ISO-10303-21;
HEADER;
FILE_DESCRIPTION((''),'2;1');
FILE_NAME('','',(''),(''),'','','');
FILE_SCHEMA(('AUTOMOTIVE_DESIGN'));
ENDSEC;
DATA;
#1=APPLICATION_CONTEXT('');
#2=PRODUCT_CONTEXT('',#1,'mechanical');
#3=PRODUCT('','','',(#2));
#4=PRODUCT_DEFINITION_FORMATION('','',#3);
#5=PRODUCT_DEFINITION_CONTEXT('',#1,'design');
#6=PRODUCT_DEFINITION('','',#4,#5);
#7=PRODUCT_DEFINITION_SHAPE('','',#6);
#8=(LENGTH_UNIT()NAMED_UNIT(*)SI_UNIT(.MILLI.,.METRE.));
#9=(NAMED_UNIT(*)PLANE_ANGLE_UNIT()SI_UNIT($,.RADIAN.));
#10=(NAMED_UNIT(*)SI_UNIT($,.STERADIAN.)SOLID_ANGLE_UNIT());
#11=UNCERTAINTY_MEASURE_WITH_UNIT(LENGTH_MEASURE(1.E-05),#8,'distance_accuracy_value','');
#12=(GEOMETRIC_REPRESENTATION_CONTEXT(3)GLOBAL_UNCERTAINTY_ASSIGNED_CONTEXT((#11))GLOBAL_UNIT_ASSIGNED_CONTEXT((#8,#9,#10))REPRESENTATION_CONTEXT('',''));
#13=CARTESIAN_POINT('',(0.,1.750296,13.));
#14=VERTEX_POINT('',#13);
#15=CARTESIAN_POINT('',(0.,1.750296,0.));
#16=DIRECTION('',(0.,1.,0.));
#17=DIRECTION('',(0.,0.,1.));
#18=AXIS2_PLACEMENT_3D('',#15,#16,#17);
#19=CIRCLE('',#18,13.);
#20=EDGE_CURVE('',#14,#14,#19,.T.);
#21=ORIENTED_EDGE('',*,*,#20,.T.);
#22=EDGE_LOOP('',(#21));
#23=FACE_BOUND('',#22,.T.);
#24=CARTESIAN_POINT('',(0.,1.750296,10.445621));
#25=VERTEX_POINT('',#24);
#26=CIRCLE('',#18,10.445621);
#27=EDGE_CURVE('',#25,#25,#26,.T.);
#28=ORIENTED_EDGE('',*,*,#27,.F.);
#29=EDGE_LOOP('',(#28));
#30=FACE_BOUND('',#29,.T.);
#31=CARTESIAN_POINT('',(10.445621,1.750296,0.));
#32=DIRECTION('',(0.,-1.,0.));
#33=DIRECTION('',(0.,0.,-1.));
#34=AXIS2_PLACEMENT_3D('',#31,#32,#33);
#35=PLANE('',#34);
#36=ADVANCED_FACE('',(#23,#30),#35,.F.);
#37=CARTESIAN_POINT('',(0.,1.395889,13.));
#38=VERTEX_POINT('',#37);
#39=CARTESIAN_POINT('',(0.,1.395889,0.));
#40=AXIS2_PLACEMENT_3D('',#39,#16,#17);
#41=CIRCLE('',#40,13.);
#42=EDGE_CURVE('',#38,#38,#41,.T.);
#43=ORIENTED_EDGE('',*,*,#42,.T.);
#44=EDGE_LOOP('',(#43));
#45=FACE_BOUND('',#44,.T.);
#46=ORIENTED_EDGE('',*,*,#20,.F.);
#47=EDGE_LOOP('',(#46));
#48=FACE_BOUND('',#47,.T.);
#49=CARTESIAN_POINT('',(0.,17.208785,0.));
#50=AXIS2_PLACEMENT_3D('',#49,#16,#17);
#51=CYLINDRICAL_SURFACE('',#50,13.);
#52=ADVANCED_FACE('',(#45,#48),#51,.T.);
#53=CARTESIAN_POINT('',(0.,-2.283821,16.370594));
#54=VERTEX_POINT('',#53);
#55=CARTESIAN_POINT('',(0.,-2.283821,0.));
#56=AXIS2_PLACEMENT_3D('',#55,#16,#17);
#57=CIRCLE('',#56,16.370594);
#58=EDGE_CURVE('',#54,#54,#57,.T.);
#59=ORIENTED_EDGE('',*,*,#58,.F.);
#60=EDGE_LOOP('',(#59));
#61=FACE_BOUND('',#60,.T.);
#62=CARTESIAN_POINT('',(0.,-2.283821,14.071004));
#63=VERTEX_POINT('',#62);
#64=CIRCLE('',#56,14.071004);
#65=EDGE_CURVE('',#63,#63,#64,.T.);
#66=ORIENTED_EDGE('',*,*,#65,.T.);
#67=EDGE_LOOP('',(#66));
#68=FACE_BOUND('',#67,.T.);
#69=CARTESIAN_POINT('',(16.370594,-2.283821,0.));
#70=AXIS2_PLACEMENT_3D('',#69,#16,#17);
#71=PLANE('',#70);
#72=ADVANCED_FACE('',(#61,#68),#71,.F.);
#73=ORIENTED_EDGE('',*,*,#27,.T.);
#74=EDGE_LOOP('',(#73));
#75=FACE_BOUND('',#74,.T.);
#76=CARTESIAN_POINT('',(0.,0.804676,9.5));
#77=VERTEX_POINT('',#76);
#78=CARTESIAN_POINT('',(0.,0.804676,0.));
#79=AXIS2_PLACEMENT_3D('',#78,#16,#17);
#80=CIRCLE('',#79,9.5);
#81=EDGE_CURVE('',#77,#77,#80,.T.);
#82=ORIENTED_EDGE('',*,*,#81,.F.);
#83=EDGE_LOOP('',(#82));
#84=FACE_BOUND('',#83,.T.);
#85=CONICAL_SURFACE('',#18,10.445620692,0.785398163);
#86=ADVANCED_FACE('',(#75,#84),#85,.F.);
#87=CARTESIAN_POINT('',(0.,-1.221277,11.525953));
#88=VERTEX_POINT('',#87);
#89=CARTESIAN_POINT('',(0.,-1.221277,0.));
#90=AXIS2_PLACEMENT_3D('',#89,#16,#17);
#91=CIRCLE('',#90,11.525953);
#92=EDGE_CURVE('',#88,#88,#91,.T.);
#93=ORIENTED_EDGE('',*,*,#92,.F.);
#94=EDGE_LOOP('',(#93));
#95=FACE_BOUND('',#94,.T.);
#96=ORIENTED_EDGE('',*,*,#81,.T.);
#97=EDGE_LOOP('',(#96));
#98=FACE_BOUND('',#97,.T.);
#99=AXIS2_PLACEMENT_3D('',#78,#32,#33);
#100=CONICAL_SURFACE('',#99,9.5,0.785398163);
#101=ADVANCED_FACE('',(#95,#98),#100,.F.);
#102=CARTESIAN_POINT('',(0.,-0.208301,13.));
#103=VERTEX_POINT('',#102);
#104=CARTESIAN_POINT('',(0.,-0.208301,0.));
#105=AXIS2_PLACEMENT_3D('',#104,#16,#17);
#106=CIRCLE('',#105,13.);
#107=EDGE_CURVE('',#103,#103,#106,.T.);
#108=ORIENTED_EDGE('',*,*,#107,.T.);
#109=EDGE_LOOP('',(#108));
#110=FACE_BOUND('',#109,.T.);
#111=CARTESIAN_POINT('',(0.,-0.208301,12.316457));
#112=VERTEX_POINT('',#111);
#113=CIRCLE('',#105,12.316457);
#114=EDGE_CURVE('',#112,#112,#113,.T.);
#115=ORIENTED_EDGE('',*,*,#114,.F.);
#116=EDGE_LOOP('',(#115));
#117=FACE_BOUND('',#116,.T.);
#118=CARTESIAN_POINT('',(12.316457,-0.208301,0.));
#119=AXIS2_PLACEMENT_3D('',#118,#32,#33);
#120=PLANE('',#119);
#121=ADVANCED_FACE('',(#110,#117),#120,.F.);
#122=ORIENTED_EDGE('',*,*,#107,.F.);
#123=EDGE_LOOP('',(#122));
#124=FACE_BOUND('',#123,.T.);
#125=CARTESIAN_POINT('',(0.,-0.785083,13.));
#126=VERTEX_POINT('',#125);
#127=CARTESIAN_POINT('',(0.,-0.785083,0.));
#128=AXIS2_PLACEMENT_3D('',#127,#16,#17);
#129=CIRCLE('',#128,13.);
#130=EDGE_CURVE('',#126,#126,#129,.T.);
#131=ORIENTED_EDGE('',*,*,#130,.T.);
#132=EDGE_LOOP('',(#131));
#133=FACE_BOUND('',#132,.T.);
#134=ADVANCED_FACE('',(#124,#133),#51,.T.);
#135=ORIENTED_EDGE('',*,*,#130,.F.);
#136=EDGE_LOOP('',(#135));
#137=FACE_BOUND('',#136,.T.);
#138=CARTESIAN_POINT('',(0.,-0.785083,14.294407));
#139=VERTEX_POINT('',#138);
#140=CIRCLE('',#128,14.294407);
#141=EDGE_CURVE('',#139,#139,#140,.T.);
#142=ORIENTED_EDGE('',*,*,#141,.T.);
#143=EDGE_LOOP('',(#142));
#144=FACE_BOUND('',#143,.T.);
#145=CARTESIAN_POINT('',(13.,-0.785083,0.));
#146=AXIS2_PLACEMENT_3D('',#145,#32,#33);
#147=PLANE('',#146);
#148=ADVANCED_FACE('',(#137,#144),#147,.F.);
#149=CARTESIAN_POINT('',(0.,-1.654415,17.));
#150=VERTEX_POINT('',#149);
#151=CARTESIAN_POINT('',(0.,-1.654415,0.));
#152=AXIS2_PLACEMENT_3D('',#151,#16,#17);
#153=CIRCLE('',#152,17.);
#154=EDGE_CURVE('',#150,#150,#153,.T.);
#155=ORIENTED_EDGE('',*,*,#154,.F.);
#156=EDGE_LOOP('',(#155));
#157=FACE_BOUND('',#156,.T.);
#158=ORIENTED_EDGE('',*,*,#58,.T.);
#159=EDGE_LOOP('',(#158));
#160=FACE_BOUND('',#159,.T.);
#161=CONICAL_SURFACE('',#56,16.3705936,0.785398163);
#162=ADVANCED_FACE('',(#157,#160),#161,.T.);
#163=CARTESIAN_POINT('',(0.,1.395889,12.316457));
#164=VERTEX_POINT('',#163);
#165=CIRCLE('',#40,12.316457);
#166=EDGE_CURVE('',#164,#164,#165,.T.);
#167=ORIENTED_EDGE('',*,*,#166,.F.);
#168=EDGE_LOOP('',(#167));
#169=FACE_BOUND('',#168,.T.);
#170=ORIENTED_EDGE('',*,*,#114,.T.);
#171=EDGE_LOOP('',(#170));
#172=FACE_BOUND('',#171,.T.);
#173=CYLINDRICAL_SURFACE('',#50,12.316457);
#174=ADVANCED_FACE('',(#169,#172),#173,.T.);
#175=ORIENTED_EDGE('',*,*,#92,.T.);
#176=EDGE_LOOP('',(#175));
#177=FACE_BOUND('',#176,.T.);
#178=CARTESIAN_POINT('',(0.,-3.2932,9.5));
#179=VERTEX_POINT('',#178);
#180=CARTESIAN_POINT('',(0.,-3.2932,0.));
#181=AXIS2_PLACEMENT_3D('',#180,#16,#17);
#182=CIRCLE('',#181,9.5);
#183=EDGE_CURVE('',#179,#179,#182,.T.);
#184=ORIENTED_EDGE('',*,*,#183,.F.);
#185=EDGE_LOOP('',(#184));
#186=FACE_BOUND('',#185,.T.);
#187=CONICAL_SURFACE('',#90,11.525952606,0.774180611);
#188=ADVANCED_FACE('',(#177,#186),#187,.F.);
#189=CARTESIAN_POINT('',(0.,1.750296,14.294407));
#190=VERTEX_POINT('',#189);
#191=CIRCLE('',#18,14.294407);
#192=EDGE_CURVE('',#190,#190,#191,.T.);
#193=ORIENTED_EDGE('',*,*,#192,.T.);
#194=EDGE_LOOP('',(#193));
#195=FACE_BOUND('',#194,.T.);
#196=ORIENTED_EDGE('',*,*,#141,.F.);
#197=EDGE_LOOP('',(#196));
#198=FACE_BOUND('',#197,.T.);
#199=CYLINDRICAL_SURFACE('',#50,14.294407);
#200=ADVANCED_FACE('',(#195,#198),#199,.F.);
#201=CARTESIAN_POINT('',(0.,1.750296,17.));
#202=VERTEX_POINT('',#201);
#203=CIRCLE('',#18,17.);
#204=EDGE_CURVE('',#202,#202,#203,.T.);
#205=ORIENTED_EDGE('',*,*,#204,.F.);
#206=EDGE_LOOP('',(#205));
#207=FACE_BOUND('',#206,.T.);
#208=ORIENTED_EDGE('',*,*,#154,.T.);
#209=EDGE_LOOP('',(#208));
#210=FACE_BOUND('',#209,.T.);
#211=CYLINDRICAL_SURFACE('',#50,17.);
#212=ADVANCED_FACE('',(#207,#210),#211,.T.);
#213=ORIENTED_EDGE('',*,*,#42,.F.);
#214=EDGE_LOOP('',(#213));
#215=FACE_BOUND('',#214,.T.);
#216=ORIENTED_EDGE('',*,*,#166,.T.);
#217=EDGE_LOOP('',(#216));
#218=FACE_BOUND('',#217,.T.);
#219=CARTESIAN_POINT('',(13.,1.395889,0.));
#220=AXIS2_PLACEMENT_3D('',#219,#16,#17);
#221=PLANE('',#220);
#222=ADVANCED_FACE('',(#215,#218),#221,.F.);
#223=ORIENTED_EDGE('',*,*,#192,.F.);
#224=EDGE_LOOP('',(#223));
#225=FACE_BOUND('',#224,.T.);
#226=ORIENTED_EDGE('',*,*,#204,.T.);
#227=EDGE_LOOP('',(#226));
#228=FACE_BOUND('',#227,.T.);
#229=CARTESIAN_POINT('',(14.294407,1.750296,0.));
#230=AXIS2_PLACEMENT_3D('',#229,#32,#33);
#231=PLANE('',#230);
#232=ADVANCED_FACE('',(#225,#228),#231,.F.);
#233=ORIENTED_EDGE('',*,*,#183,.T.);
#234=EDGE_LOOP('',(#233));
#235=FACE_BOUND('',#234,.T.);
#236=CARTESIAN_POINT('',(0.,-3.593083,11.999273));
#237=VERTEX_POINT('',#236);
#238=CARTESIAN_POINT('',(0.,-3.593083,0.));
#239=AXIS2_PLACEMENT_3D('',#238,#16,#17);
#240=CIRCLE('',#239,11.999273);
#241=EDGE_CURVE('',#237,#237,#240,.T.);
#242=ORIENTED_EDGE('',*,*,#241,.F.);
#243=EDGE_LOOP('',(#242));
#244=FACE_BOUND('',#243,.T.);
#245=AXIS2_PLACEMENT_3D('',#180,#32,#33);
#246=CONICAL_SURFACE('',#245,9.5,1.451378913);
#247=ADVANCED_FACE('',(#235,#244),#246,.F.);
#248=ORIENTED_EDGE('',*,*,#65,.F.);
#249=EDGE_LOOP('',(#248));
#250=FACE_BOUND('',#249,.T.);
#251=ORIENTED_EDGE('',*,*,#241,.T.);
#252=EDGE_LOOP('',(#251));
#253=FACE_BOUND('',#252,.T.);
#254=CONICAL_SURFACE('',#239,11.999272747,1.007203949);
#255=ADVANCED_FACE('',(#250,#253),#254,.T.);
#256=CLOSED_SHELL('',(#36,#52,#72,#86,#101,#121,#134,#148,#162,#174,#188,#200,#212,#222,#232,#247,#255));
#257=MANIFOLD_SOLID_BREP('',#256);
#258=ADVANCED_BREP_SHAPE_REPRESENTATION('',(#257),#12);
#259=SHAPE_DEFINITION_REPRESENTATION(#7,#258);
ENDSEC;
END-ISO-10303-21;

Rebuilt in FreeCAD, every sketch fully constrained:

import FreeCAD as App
import Part
import Sketcher

V = App.Vector
Q = App.Units.Quantity

doc = App.newDocument("Part")
body = doc.addObject("PartDesign::Body", "Body")

# Sketch on XY plane
sketch1 = doc.addObject("Sketcher::SketchObject", "Sketch")
body.addObject(sketch1)
sketch1.AttachmentSupport = (doc.XY_Plane, [""])
sketch1.MapMode = "FlatFace"
sketch1.addGeometry([
    Part.LineSegment(V(9.5, 0.804676, 0), V(11.525953, -1.221277, 0)),  # 0
    Part.LineSegment(V(11.525953, -1.221277, 0), V(9.5, -3.2932, 0)),  # 1
    Part.LineSegment(V(9.5, -3.2932, 0), V(11.999273, -3.593083, 0)),  # 2
    Part.LineSegment(V(11.999273, -3.593083, 0), V(14.071004, -2.283821, 0)),  # 3
    Part.LineSegment(V(14.071004, -2.283821, 0), V(16.370594, -2.283821, 0)),  # 4
    Part.LineSegment(V(16.370594, -2.283821, 0), V(17, -1.654415, 0)),  # 5
    Part.LineSegment(V(17, -1.654415, 0), V(17, 1.750296, 0)),  # 6
    Part.LineSegment(V(17, 1.750296, 0), V(14.294407, 1.750296, 0)),  # 7
    Part.LineSegment(V(14.294407, 1.750296, 0), V(14.294407, -0.785083, 0)),  # 8
    Part.LineSegment(V(14.294407, -0.785083, 0), V(13, -0.785083, 0)),  # 9
    Part.LineSegment(V(13, -0.785083, 0), V(13, -0.208301, 0)),  # 10
    Part.LineSegment(V(13, -0.208301, 0), V(12.316457, -0.208301, 0)),  # 11
    Part.LineSegment(V(12.316457, -0.208301, 0), V(12.316457, 1.395889, 0)),  # 12
    Part.LineSegment(V(12.316457, 1.395889, 0), V(13, 1.395889, 0)),  # 13
    Part.LineSegment(V(13, 1.395889, 0), V(13, 1.750296, 0)),  # 14
    Part.LineSegment(V(13, 1.750296, 0), V(10.445621, 1.750296, 0)),  # 15
    Part.LineSegment(V(10.445621, 1.750296, 0), V(9.5, 0.804676, 0)),  # 16
], False)
sketch1.addConstraint([
    Sketcher.Constraint("Coincident", 0, 2, 1, 1),
    Sketcher.Constraint("Coincident", 1, 2, 2, 1),
    Sketcher.Constraint("Coincident", 2, 2, 3, 1),
    Sketcher.Constraint("Coincident", 3, 2, 4, 1),
    Sketcher.Constraint("Coincident", 4, 2, 5, 1),
    Sketcher.Constraint("Coincident", 5, 2, 6, 1),
    Sketcher.Constraint("Coincident", 6, 2, 7, 1),
    Sketcher.Constraint("Coincident", 7, 2, 8, 1),
    Sketcher.Constraint("Coincident", 8, 2, 9, 1),
    Sketcher.Constraint("Coincident", 9, 2, 10, 1),
    Sketcher.Constraint("Coincident", 10, 2, 11, 1),
    Sketcher.Constraint("Coincident", 11, 2, 12, 1),
    Sketcher.Constraint("Coincident", 12, 2, 13, 1),
    Sketcher.Constraint("Coincident", 13, 2, 14, 1),
    Sketcher.Constraint("Coincident", 14, 2, 15, 1),
    Sketcher.Constraint("Coincident", 15, 2, 16, 1),
    Sketcher.Constraint("Coincident", 16, 2, 0, 1),
    Sketcher.Constraint("Horizontal", 4),
    Sketcher.Constraint("Vertical", 6),
    Sketcher.Constraint("Horizontal", 7),
    Sketcher.Constraint("Vertical", 8),
    Sketcher.Constraint("Horizontal", 9),
    Sketcher.Constraint("Vertical", 10),
    Sketcher.Constraint("Horizontal", 11),
    Sketcher.Constraint("Vertical", 12),
    Sketcher.Constraint("Horizontal", 13),
    Sketcher.Constraint("Vertical", 14),
    Sketcher.Constraint("Horizontal", 15),
    Sketcher.Constraint("Perpendicular", 0, 5),
    Sketcher.Constraint("Parallel", 5, 16),
    Sketcher.Constraint("Horizontal", 7, 2, 14, 2),
    Sketcher.Constraint("Vertical", 10, 2, 13, 2),
    Sketcher.Constraint("Vertical", 1, 2, 16, 2),
    Sketcher.Constraint("Angle", 0, Q("-45 deg")),
    Sketcher.Constraint("DistanceX", -1, 1, 5, 2, 17.0),
    Sketcher.Constraint("DistanceX", -1, 1, 9, 2, 13.0),
    Sketcher.Constraint("DistanceX", -1, 1, 1, 2, 9.5),
    Sketcher.Constraint("DistanceY", 2, 2, 9, 2, 2.808),
    Sketcher.Constraint("Distance", 2, 2.5172),
    Sketcher.Constraint("DistanceX", 4, 1, 4, 2, 2.29959),
    Sketcher.Constraint("DistanceX", 15, 2, 15, 1, 2.554379),
    Sketcher.Constraint("DistanceY", 6, 1, 6, 2, 3.404711),
    Sketcher.Constraint("DistanceY", 8, 2, 8, 1, 2.535379),
    Sketcher.Constraint("DistanceY", 12, 1, 12, 2, 1.604189),
    Sketcher.Constraint("DistanceY", 1, 2, -1, 1, 3.2932),
    Sketcher.Constraint("DistanceY", 10, 2, -1, 1, 0.208301),
    Sketcher.Constraint("Distance", 0, 2.86513),
    Sketcher.Constraint("DistanceX", 7, 2, 7, 1, 2.705593),
    Sketcher.Constraint("DistanceX", 11, 2, 11, 1, 0.683543),
    Sketcher.Constraint("DistanceY", 10, 1, 10, 2, 0.576782),
    Sketcher.Constraint("DistanceY", 3, 2, -1, 1, 2.283821),
])
revolution = doc.addObject("PartDesign::Revolution", "Revolution")
body.addObject(revolution)
revolution.Profile = sketch1
revolution.ReferenceAxis = (sketch1, ["V_Axis"])
revolution.Angle = 360

doc.recompute()
